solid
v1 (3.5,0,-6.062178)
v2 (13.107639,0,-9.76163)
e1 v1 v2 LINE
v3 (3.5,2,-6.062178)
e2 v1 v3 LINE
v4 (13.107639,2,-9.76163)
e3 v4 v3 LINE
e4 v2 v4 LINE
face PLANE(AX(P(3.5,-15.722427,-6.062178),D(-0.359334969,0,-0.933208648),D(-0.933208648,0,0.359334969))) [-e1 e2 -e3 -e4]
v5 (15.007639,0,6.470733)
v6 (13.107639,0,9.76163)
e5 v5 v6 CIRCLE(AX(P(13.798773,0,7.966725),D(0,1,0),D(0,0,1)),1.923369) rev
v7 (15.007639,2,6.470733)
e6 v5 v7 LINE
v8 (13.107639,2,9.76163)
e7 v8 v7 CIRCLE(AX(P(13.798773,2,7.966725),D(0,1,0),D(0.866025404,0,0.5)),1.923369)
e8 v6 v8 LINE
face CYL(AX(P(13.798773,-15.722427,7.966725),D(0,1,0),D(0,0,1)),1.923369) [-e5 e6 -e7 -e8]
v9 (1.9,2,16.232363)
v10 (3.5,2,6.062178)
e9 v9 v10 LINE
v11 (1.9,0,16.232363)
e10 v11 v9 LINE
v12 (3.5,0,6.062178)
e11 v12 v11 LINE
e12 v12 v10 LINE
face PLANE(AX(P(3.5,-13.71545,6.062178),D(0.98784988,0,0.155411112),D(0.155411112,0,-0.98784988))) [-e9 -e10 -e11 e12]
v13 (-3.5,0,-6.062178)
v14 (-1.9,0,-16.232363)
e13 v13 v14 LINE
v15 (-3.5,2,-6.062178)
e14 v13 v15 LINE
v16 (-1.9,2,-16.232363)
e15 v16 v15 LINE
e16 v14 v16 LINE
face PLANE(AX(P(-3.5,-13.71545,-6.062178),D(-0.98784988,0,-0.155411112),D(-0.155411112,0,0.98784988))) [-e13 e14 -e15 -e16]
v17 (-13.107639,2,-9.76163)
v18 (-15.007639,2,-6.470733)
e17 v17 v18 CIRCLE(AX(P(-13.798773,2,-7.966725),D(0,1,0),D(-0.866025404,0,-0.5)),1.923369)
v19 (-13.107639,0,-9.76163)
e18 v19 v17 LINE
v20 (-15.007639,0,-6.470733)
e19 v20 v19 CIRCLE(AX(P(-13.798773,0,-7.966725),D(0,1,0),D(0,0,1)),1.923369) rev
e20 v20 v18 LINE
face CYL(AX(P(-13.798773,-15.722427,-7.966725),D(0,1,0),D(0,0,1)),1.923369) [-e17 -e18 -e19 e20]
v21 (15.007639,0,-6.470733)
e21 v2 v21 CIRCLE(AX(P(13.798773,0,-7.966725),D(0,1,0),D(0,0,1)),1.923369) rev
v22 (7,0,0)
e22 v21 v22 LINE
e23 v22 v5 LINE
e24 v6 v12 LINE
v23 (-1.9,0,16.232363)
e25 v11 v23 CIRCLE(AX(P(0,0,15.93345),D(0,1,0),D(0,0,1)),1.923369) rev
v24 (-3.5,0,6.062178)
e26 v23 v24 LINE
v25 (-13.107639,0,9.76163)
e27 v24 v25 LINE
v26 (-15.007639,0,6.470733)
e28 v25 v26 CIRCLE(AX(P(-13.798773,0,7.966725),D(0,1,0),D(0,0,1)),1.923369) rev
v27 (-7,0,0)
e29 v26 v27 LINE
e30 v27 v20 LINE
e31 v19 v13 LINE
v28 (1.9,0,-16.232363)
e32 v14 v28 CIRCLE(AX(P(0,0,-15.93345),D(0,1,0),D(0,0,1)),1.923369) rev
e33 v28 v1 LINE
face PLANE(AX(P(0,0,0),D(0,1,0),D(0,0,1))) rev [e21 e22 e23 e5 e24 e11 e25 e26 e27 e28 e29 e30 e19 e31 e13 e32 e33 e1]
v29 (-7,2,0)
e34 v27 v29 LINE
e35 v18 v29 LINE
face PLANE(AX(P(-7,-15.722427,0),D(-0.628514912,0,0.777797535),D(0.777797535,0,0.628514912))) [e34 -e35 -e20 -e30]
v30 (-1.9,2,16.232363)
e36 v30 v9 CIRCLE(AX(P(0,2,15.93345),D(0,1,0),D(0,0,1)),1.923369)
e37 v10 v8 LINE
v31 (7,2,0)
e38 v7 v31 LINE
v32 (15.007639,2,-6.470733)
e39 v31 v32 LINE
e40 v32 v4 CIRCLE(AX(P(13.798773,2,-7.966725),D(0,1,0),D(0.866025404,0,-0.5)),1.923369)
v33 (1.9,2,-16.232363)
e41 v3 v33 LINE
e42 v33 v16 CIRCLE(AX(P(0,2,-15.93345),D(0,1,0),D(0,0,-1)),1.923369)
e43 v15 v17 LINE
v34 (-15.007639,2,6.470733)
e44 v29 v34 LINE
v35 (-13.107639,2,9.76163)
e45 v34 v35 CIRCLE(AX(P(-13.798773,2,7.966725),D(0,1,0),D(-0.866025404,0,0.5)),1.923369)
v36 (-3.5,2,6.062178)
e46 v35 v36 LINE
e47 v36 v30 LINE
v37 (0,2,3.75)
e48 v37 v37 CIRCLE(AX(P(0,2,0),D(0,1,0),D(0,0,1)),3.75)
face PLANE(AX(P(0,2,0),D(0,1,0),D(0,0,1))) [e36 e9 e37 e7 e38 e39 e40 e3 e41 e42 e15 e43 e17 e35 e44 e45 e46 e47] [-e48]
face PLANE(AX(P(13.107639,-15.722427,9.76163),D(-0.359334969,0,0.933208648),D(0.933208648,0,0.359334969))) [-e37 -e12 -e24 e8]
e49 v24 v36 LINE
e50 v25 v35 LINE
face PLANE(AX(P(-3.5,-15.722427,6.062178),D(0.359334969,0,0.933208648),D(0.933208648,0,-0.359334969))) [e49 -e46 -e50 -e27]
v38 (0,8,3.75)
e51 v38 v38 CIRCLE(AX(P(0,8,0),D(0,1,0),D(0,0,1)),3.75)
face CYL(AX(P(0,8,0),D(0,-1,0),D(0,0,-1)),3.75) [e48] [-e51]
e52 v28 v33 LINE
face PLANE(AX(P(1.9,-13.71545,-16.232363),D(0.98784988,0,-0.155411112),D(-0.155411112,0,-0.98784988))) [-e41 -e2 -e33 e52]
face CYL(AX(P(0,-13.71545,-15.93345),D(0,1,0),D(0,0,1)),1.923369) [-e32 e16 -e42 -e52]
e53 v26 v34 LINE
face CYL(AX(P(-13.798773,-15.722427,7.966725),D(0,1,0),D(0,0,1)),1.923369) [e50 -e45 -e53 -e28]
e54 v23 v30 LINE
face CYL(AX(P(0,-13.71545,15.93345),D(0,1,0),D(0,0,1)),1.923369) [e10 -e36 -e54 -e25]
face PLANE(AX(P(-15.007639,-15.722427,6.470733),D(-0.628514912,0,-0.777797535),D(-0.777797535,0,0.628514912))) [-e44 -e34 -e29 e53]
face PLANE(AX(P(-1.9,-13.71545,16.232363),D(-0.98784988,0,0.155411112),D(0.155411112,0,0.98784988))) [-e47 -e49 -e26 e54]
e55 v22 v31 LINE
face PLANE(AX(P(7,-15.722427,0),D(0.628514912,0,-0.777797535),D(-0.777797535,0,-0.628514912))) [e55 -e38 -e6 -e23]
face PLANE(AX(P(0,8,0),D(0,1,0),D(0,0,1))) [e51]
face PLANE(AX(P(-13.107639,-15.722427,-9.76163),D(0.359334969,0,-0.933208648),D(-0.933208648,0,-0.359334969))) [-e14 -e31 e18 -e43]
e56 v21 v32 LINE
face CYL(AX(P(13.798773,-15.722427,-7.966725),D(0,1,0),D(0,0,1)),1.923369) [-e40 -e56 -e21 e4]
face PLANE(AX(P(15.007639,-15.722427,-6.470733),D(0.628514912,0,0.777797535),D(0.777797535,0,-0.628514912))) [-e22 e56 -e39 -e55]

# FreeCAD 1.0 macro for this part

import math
import FreeCAD as App
import Part
import Sketcher

V = App.Vector

doc = App.newDocument("Part")
body = doc.addObject("PartDesign::Body", "Body")

# Sketch on XZ plane
sketch1 = body.newObject("Sketcher::SketchObject", "Sketch")
sketch1.AttachmentSupport = (doc.getObject("XZ_Plane"), [""])
sketch1.MapMode = "FlatFace"
sketch1.addGeometry(Part.Circle(V(0, 0, 0), V(0, 0, 1), 7), False)
sketch1.addConstraint([
    Sketcher.Constraint("Coincident", 0, 3, -1, 1),
    Sketcher.Constraint("Diameter", 0, 14.0),
])
pad1 = body.newObject("PartDesign::Pad", "Pad")
pad1.Profile = sketch1
pad1.Length = 2
pad1.Reversed = True

# Sketch on XZ plane
sketch2 = body.newObject("Sketcher::SketchObject", "Sketch001")
sketch2.AttachmentSupport = (doc.getObject("XZ_Plane"), [""])
sketch2.MapMode = "FlatFace"
sketch2.addGeometry([
    Part.LineSegment(V(-1.9, -16.232363, 0), V(-3.5, -6.062178, 0)),
    Part.ArcOfCircle(Part.Circle(V(0, 0, 0), V(0, 0, 1), 7), math.radians(-120), math.radians(-60)),
    Part.LineSegment(V(3.5, -6.062178, 0), V(1.9, -16.232363, 0)),
    Part.ArcOfCircle(Part.Circle(V(0, -15.93345, 0), V(0, 0, 1), 1.923369), math.radians(-171.05936), math.radians(-8.94064)),
], False)
sketch2.addConstraint([
    Sketcher.Constraint("Coincident", 0, 2, 1, 1),
    Sketcher.Constraint("Coincident", 1, 2, 2, 1),
    Sketcher.Constraint("Coincident", 2, 2, 3, 2),
    Sketcher.Constraint("Coincident", 3, 1, 0, 1),
    Sketcher.Constraint("Coincident", 1, 3, -1, 1),
    Sketcher.Constraint("PointOnObject", 3, 3, -2),
    Sketcher.Constraint("Radius", 1, 7.0),
    Sketcher.Constraint("DistanceX", 0, 2, 1, 2, 7.0),
    Sketcher.Constraint("DistanceX", 0, 2, -1, 1, 3.5),
    Sketcher.Constraint("DistanceX", -1, 1, 2, 2, 1.9),
    Sketcher.Constraint("DistanceX", 3, 1, -1, 1, 1.9),
    Sketcher.Constraint("Radius", 3, 1.923369),
    Sketcher.Constraint("DistanceY", 3, 3, -1, 1, 15.93345),
])
pad2 = body.newObject("PartDesign::Pad", "Pad001")
pad2.Profile = sketch2
pad2.Length = 2
pad2.Reversed = True
doc.recompute()

polarpattern = body.newObject("PartDesign::PolarPattern", "PolarPattern")
polarpattern.Originals = [pad2]
polarpattern.Axis = (doc.getObject("Y_Axis"), [""])
polarpattern.Angle = 360
polarpattern.Occurrences = 6
body.Tip = polarpattern

# Sketch on XZ plane
sketch3 = body.newObject("Sketcher::SketchObject", "Sketch002")
sketch3.AttachmentSupport = (doc.getObject("XZ_Plane"), [""])
sketch3.MapMode = "FlatFace"
sketch3.AttachmentOffset = App.Placement(V(0, 0, -2), App.Rotation())
sketch3.addGeometry(Part.Circle(V(0, 0, 0), V(0, 0, 1), 3.75), False)
sketch3.addConstraint([
    Sketcher.Constraint("Coincident", 0, 3, -1, 1),
    Sketcher.Constraint("Diameter", 0, 7.5),
])
pad3 = body.newObject("PartDesign::Pad", "Pad002")
pad3.Profile = sketch3
pad3.Length = 6
pad3.Reversed = True

doc.recompute()
